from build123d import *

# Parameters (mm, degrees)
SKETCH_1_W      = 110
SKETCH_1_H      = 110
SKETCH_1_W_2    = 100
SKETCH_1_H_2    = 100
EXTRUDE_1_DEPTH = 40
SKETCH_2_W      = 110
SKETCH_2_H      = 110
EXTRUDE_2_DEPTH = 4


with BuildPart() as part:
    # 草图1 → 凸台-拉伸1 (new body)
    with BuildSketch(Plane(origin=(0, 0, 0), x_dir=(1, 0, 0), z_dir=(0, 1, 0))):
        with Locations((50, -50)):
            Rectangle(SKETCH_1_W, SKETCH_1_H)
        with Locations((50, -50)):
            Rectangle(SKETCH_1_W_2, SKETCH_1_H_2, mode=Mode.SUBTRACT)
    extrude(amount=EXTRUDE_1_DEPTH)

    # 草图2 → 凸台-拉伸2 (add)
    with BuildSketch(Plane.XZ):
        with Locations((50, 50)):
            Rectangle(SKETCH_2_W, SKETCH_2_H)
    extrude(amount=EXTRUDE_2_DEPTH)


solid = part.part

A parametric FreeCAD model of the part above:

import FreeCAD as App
import Part
import Sketcher

V = App.Vector
Q = App.Units.Quantity


def add_polygon(sketch, points):
    """Adds a closed chain of lines whose ends are joined by coincident constraints."""
    first, n = sketch.GeometryCount, len(points)
    for a, b in zip(points, points[1:] + points[:1]):
        sketch.addGeometry(Part.LineSegment(App.Vector(*a, 0), App.Vector(*b, 0)), False)
    for i in range(n):
        sketch.addConstraint(Sketcher.Constraint("Coincident", first + i, 2, first + (i + 1) % n, 1))

doc = App.newDocument("Part")
body = doc.addObject("PartDesign::Body", "Body")

sketch1 = doc.addObject("Sketcher::SketchObject", "Sketch")
body.addObject(sketch1)
sketch1.AttachmentSupport = (doc.XZ_Plane, [""])
sketch1.MapMode = "FlatFace"
add_polygon(sketch1, [(-5, -5), (-5, 105), (105, 105), (105, -5)])
add_polygon(sketch1, [(100, 100), (0, 100), (0, 0), (100, 0)])
sketch1.addConstraint(Sketcher.Constraint("Vertical", 0))
sketch1.addConstraint(Sketcher.Constraint("Horizontal", 1))
sketch1.addConstraint(Sketcher.Constraint("Vertical", 2))
sketch1.addConstraint(Sketcher.Constraint("Horizontal", 3))
sketch1.addConstraint(Sketcher.Constraint("Horizontal", 4))
sketch1.addConstraint(Sketcher.Constraint("Vertical", 5))
sketch1.addConstraint(Sketcher.Constraint("Horizontal", 6))
sketch1.addConstraint(Sketcher.Constraint("Vertical", 7))
sketch1.addConstraint(Sketcher.Constraint("Coincident", 5, 2, -1, 1))
sketch1.addConstraint(Sketcher.Constraint("Equal", 3, 0))
sketch1.addConstraint(Sketcher.Constraint("Equal", 6, 5))
sketch1.addConstraint(Sketcher.Constraint("DistanceX", 1, 1, 1, 2, Q("110 mm")))
sketch1.addConstraint(Sketcher.Constraint("DistanceX", 4, 2, 4, 1, Q("100 mm")))
sketch1.addConstraint(Sketcher.Constraint("DistanceX", 0, 2, -1, 1, Q("5 mm")))
sketch1.addConstraint(Sketcher.Constraint("DistanceY", -1, 1, 0, 2, Q("105 mm")))
pad1 = doc.addObject("PartDesign::Pad", "Pad")
body.addObject(pad1)
pad1.Profile = sketch1
pad1.Length = 40
pad1.Reversed = True

sketch2 = doc.addObject("Sketcher::SketchObject", "Sketch001")
body.addObject(sketch2)
sketch2.AttachmentSupport = (doc.XZ_Plane, [""])
sketch2.MapMode = "FlatFace"
add_polygon(sketch2, [(-5, 105), (-5, -5), (105, -5), (105, 105)])
sketch2.addConstraint(Sketcher.Constraint("Vertical", 0))
sketch2.addConstraint(Sketcher.Constraint("Horizontal", 1))
sketch2.addConstraint(Sketcher.Constraint("Vertical", 2))
sketch2.addConstraint(Sketcher.Constraint("Horizontal", 3))
sketch2.addConstraint(Sketcher.Constraint("Equal", 3, 0))
sketch2.addConstraint(Sketcher.Constraint("DistanceX", 1, 1, 1, 2, Q("110 mm")))
sketch2.addConstraint(Sketcher.Constraint("DistanceX", 0, 2, -1, 1, Q("5 mm")))
sketch2.addConstraint(Sketcher.Constraint("DistanceY", 0, 2, -1, 1, Q("5 mm")))
pad2 = doc.addObject("PartDesign::Pad", "Pad001")
body.addObject(pad2)
pad2.Profile = sketch2
pad2.Length = 4

doc.recompute()
